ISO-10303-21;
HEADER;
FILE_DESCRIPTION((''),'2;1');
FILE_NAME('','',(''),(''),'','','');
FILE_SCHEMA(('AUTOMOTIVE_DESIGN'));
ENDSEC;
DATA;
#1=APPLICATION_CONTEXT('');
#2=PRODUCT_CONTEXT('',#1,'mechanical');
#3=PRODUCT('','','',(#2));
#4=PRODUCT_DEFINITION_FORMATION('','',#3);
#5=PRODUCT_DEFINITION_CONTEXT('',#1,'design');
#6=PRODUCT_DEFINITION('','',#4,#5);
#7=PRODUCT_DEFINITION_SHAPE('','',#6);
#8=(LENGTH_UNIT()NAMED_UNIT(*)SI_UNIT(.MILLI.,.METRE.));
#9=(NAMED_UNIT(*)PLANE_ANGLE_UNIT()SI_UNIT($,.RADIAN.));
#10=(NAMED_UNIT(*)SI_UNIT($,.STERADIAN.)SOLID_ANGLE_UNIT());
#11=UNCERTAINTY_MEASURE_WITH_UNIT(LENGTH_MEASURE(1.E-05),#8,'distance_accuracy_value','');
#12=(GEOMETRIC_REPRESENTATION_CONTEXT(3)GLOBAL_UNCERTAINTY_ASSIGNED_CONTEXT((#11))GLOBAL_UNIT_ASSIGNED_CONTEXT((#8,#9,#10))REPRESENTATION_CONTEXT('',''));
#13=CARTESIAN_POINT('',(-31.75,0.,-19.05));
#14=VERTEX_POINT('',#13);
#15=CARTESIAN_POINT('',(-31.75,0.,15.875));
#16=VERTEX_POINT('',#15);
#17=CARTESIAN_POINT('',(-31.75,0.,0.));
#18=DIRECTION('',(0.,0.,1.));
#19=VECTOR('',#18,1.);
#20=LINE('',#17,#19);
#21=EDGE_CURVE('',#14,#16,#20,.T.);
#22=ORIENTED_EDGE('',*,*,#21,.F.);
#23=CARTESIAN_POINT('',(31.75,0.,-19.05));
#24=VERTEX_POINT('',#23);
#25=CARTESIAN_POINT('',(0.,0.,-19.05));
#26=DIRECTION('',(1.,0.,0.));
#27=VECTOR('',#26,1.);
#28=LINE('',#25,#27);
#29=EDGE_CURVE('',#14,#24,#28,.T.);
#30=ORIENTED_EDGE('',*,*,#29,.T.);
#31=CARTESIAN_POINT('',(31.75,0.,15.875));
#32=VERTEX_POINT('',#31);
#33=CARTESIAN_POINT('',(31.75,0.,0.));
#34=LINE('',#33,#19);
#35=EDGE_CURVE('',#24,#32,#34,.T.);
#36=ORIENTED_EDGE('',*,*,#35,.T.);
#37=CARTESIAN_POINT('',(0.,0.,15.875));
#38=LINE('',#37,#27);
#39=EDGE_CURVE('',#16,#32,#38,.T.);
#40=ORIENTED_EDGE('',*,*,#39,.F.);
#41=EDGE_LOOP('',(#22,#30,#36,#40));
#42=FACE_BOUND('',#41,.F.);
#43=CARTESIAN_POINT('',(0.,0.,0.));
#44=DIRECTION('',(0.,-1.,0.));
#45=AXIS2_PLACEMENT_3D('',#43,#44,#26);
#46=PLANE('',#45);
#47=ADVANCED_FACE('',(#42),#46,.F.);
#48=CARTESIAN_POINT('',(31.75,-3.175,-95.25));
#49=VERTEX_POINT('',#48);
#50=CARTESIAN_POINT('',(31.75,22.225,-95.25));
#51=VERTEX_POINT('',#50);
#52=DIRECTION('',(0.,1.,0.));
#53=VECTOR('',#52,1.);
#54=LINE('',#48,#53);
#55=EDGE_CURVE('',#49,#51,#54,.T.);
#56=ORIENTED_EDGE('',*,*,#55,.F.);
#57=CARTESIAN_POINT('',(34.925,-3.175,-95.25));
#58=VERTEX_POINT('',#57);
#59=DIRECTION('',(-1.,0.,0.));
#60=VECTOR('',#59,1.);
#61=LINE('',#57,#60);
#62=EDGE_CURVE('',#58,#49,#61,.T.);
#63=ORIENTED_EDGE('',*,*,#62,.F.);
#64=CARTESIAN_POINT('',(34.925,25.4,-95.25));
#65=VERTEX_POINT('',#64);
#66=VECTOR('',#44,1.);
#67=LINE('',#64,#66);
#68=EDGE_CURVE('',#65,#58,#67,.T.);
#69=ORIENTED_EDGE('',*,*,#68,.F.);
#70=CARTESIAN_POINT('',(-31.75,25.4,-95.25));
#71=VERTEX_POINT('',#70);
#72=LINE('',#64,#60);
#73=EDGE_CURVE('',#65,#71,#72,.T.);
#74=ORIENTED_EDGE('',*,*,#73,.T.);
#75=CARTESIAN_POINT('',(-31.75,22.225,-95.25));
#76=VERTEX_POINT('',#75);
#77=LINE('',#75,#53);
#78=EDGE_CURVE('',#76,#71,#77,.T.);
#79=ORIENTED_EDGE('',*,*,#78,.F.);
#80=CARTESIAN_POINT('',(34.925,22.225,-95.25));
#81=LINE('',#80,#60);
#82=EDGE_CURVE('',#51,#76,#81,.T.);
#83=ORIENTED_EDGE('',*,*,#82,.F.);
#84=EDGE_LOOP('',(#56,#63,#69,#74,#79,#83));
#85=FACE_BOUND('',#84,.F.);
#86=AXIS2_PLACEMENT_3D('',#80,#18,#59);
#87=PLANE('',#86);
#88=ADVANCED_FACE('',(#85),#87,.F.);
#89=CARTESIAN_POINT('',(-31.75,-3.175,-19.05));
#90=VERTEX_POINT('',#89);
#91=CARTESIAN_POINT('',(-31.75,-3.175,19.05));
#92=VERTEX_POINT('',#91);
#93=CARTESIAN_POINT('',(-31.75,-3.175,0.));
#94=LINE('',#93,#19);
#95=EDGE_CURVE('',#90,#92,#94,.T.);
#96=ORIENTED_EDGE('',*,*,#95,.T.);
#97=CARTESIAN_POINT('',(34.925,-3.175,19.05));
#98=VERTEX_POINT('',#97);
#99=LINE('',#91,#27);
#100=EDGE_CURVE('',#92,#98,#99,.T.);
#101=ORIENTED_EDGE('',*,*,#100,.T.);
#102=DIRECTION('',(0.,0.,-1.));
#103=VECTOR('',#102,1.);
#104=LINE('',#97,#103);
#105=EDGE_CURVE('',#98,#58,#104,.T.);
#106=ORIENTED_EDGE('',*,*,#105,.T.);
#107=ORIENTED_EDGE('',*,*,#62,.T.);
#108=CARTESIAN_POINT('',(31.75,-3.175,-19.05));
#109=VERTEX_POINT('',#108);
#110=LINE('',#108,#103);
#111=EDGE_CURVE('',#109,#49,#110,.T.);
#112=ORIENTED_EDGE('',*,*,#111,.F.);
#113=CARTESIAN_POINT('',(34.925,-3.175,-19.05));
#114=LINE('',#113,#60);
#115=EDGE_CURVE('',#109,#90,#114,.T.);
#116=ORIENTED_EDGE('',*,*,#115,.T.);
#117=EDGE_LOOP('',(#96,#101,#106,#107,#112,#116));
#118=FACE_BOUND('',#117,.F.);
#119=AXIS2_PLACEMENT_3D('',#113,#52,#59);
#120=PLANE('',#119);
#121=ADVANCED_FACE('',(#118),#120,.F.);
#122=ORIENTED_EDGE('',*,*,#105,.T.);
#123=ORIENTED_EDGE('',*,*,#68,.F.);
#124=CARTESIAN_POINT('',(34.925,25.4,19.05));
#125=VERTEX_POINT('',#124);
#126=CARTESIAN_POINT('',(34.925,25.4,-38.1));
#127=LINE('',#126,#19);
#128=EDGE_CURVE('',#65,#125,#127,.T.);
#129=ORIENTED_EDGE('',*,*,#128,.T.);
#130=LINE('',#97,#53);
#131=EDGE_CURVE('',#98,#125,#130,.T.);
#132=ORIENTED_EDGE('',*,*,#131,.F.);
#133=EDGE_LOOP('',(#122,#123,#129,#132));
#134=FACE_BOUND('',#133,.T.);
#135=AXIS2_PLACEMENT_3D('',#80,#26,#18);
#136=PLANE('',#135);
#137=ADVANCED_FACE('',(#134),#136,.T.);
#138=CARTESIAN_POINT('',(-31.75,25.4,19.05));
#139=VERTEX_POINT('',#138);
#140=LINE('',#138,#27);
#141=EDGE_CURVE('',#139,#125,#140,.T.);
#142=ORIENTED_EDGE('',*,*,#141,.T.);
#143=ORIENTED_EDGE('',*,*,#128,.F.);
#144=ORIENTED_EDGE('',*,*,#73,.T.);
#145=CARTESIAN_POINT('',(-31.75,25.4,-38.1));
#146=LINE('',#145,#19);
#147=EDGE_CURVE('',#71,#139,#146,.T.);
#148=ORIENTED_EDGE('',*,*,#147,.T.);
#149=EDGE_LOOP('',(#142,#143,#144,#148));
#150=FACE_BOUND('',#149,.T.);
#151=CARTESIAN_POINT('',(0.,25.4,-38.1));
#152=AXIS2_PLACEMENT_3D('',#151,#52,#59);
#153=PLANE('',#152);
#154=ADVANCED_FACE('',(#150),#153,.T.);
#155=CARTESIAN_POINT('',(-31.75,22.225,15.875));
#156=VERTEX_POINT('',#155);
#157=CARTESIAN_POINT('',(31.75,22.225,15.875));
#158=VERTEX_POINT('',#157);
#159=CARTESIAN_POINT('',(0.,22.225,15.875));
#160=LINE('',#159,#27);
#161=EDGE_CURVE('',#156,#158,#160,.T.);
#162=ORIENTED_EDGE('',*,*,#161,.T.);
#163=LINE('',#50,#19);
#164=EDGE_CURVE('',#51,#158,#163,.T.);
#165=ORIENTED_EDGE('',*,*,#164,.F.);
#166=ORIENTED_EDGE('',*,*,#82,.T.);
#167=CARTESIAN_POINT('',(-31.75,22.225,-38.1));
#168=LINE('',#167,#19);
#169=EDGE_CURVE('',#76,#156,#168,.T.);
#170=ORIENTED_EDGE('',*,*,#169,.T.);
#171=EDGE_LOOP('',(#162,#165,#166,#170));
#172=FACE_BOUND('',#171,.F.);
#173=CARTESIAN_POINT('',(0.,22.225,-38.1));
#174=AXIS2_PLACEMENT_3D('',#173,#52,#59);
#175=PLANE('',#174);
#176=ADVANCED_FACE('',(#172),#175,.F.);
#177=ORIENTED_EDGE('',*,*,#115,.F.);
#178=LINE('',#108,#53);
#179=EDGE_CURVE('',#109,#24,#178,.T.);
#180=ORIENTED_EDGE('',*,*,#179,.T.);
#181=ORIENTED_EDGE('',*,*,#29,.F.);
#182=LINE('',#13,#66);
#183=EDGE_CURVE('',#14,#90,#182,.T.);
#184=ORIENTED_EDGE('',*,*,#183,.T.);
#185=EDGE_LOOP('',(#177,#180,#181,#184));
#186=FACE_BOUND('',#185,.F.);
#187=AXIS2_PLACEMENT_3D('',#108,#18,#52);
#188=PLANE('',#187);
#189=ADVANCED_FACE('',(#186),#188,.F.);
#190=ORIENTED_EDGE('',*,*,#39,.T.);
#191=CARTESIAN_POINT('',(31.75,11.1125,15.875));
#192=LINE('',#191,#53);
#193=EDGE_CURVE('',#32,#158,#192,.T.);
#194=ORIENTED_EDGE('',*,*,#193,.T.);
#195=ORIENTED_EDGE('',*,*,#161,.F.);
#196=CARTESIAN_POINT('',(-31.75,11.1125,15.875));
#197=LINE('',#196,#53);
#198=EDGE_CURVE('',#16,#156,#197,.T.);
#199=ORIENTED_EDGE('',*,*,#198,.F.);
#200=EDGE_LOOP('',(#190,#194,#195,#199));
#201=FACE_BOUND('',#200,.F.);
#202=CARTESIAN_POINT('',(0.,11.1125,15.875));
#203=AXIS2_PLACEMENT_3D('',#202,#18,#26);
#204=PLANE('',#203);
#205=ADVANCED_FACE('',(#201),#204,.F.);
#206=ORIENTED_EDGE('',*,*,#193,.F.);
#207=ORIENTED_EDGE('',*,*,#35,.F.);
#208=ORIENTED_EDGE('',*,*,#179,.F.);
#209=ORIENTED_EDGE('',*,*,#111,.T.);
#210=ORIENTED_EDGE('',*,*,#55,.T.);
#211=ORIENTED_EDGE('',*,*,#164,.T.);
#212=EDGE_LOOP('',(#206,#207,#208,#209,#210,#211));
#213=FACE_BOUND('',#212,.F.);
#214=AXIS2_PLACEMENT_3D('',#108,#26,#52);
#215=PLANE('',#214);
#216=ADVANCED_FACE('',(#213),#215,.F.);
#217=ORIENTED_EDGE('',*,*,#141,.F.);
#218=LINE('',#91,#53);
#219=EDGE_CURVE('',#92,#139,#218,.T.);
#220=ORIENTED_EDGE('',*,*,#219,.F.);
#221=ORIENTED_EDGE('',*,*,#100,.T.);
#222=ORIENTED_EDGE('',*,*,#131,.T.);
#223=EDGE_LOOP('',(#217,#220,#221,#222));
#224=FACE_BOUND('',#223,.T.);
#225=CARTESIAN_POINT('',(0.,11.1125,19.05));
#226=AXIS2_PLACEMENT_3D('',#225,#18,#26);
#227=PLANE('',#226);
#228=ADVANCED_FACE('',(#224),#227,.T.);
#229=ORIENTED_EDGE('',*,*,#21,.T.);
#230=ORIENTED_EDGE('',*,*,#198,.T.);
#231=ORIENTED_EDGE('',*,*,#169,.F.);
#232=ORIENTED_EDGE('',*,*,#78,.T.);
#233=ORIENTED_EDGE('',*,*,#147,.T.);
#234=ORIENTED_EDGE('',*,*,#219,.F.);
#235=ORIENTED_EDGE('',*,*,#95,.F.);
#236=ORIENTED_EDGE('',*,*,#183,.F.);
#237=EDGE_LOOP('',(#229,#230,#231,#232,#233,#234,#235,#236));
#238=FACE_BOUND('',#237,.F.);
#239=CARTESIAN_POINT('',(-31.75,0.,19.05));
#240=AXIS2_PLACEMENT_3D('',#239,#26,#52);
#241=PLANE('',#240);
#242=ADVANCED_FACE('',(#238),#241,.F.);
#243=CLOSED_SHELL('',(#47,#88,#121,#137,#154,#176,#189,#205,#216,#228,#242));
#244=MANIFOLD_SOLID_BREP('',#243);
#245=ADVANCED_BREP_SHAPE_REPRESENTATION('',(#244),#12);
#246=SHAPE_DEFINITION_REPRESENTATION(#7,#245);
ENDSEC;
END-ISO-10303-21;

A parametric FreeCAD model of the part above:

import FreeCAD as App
import Part
import Sketcher
from FreeCAD import Vector
Q = App.Units.Quantity

doc = App.newDocument("Part")
body = doc.addObject("PartDesign::Body", "Body")

sketch1 = body.newObject("Sketcher::SketchObject", "Sketch")
sketch1.AttachmentSupport = (doc.getObject("XZ_Plane"), [""])
sketch1.MapMode = "FlatFace"
sketch1.addGeometry(Part.LineSegment(Vector(-31.75, 19.05, 0), Vector(-31.75, -19.05, 0)), False)
sketch1.addGeometry(Part.LineSegment(Vector(-31.75, -19.05, 0), Vector(31.75, -19.05, 0)), False)
sketch1.addGeometry(Part.LineSegment(Vector(31.75, -19.05, 0), Vector(31.75, 19.05, 0)), False)
sketch1.addGeometry(Part.LineSegment(Vector(31.75, 19.05, 0), Vector(-31.75, 19.05, 0)), False)
sketch1.addConstraint(Sketcher.Constraint("Coincident", 0, 2, 1, 1))
sketch1.addConstraint(Sketcher.Constraint("Coincident", 1, 2, 2, 1))
sketch1.addConstraint(Sketcher.Constraint("Coincident", 2, 2, 3, 1))
sketch1.addConstraint(Sketcher.Constraint("Coincident", 3, 2, 0, 1))
sketch1.addConstraint(Sketcher.Constraint("Vertical", 0))
sketch1.addConstraint(Sketcher.Constraint("Horizontal", 1))
sketch1.addConstraint(Sketcher.Constraint("Vertical", 2))
sketch1.addConstraint(Sketcher.Constraint("Horizontal", 3))
sketch1.addConstraint(Sketcher.Constraint("Symmetric", 0, 2, 2, 2, -1, 1))
sketch1.addConstraint(Sketcher.Constraint("DistanceX", 1, 1, 1, 2, Q("2.5 in")))
sketch1.addConstraint(Sketcher.Constraint("DistanceY", 0, 2, 0, 1, Q("1.5 in")))
pad1 = body.newObject("PartDesign::Pad", "Pad")
pad1.Profile = sketch1
pad1.Length = Q("0.125 in")

sketch2 = body.newObject("Sketcher::SketchObject", "Sketch001")
sketch2.AttachmentSupport = (doc.getObject("YZ_Plane"), [""])
sketch2.MapMode = "FlatFace"
sketch2.AttachmentOffset = App.Placement(Vector(0, 0, 1.25 * 25.4), App.Rotation())
sketch2.addGeometry(Part.LineSegment(Vector(22.225, -19.05, 0), Vector(22.225, 19.05, 0)), False)
sketch2.addGeometry(Part.LineSegment(Vector(22.225, 19.05, 0), Vector(-3.175, 19.05, 0)), False)
sketch2.addGeometry(Part.LineSegment(Vector(-3.175, 19.05, 0), Vector(-3.175, -19.05, 0)), False)
sketch2.addGeometry(Part.LineSegment(Vector(-3.175, -19.05, 0), Vector(22.225, -19.05, 0)), False)
sketch2.addConstraint(Sketcher.Constraint("Coincident", 0, 2, 1, 1))
sketch2.addConstraint(Sketcher.Constraint("Coincident", 1, 2, 2, 1))
sketch2.addConstraint(Sketcher.Constraint("Coincident", 2, 2, 3, 1))
sketch2.addConstraint(Sketcher.Constraint("Coincident", 3, 2, 0, 1))
sketch2.addConstraint(Sketcher.Constraint("Vertical", 0))
sketch2.addConstraint(Sketcher.Constraint("Horizontal", 1))
sketch2.addConstraint(Sketcher.Constraint("Vertical", 2))
sketch2.addConstraint(Sketcher.Constraint("Horizontal", 3))
sketch2.addConstraint(Sketcher.Constraint("DistanceX", 1, 2, 1, 1, Q("1 in")))
sketch2.addConstraint(Sketcher.Constraint("DistanceY", 0, 1, 0, 2, Q("1.5 in")))
sketch2.addConstraint(Sketcher.Constraint("DistanceY", -1, 1, 0, 2, Q("0.75 in")))
sketch2.addConstraint(Sketcher.Constraint("DistanceX", -1, 1, 0, 2, Q("0.875 in")))
pad2 = body.newObject("PartDesign::Pad", "Pad001")
pad2.Profile = sketch2
pad2.Length = Q("0.125 in")

sketch3 = body.newObject("Sketcher::SketchObject", "Sketch002")
sketch3.AttachmentSupport = (doc.getObject("XY_Plane"), [""])
sketch3.MapMode = "FlatFace"
sketch3.AttachmentOffset = App.Placement(Vector(0, 0, -0.75 * 25.4), App.Rotation())
sketch3.addGeometry(Part.LineSegment(Vector(31.75, 22.225, 0), Vector(34.925, 22.225, 0)), False)
sketch3.addGeometry(Part.LineSegment(Vector(34.925, 22.225, 0), Vector(34.925, -3.175, 0)), False)
sketch3.addGeometry(Part.LineSegment(Vector(34.925, -3.175, 0), Vector(31.75, -3.175, 0)), False)
sketch3.addGeometry(Part.LineSegment(Vector(31.75, -3.175, 0), Vector(31.75, 22.225, 0)), False)
sketch3.addConstraint(Sketcher.Constraint("Coincident", 0, 2, 1, 1))
sketch3.addConstraint(Sketcher.Constraint("Coincident", 1, 2, 2, 1))
sketch3.addConstraint(Sketcher.Constraint("Coincident", 2, 2, 3, 1))
sketch3.addConstraint(Sketcher.Constraint("Coincident", 3, 2, 0, 1))
sketch3.addConstraint(Sketcher.Constraint("Horizontal", 0))
sketch3.addConstraint(Sketcher.Constraint("Vertical", 1))
sketch3.addConstraint(Sketcher.Constraint("Horizontal", 2))
sketch3.addConstraint(Sketcher.Constraint("Vertical", 3))
sketch3.addConstraint(Sketcher.Constraint("DistanceY", 1, 2, 1, 1, Q("1 in")))
sketch3.addConstraint(Sketcher.Constraint("DistanceX", 0, 1, 0, 2, Q("0.125 in")))
sketch3.addConstraint(Sketcher.Constraint("DistanceX", -1, 1, 2, 2, Q("1.25 in")))
sketch3.addConstraint(Sketcher.Constraint("DistanceY", -1, 1, 0, 2, Q("0.875 in")))
pad3 = body.newObject("PartDesign::Pad", "Pad002")
pad3.Profile = sketch3
pad3.Length = Q("3 in")
pad3.Reversed = True

sketch4 = body.newObject("Sketcher::SketchObject", "Sketch003")
sketch4.AttachmentSupport = (doc.getObject("XZ_Plane"), [""])
sketch4.MapMode = "FlatFace"
sketch4.AttachmentOffset = App.Placement(Vector(0, 0, -0.875 * 25.4), App.Rotation())
sketch4.addGeometry(Part.LineSegment(Vector(-31.75, -95.25, 0), Vector(-31.75, 19.05, 0)), False)
sketch4.addGeometry(Part.LineSegment(Vector(-31.75, 19.05, 0), Vector(34.925, 19.05, 0)), False)
sketch4.addGeometry(Part.LineSegment(Vector(34.925, 19.05, 0), Vector(34.925, -95.25, 0)), False)
sketch4.addGeometry(Part.LineSegment(Vector(34.925, -95.25, 0), Vector(-31.75, -95.25, 0)), False)
sketch4.addConstraint(Sketcher.Constraint("Coincident", 0, 2, 1, 1))
sketch4.addConstraint(Sketcher.Constraint("Coincident", 1, 2, 2, 1))
sketch4.addConstraint(Sketcher.Constraint("Coincident", 2, 2, 3, 1))
sketch4.addConstraint(Sketcher.Constraint("Coincident", 3, 2, 0, 1))
sketch4.addConstraint(Sketcher.Constraint("Vertical", 0))
sketch4.addConstraint(Sketcher.Constraint("Horizontal", 1))
sketch4.addConstraint(Sketcher.Constraint("Vertical", 2))
sketch4.addConstraint(Sketcher.Constraint("Horizontal", 3))
sketch4.addConstraint(Sketcher.Constraint("DistanceY", 0, 1, 0, 2, Q("4.5 in")))
sketch4.addConstraint(Sketcher.Constraint("DistanceX", 1, 1, 1, 2, Q("2.625 in")))
sketch4.addConstraint(Sketcher.Constraint("DistanceX", 0, 2, -1, 1, Q("1.25 in")))
sketch4.addConstraint(Sketcher.Constraint("DistanceY", -1, 1, 0, 2, Q("0.75 in")))
pad4 = body.newObject("PartDesign::Pad", "Pad003")
pad4.Profile = sketch4
pad4.Length = Q("0.125 in")
pad4.Reversed = True

sketch5 = body.newObject("Sketcher::SketchObject", "Sketch004")
sketch5.AttachmentSupport = (doc.getObject("XY_Plane"), [""])
sketch5.MapMode = "FlatFace"
sketch5.AttachmentOffset = App.Placement(Vector(0, 0, 0.75 * 25.4), App.Rotation())
sketch5.addGeometry(Part.LineSegment(Vector(-31.75, 22.225, 0), Vector(-31.75, 0, 0)), False)
sketch5.addGeometry(Part.LineSegment(Vector(-31.75, 0, 0), Vector(31.75, 0, 0)), False)
sketch5.addGeometry(Part.LineSegment(Vector(31.75, 0, 0), Vector(31.75, 22.225, 0)), False)
sketch5.addGeometry(Part.LineSegment(Vector(31.75, 22.225, 0), Vector(-31.75, 22.225, 0)), False)
sketch5.addConstraint(Sketcher.Constraint("Coincident", 0, 2, 1, 1))
sketch5.addConstraint(Sketcher.Constraint("Coincident", 1, 2, 2, 1))
sketch5.addConstraint(Sketcher.Constraint("Coincident", 2, 2, 3, 1))
sketch5.addConstraint(Sketcher.Constraint("Coincident", 3, 2, 0, 1))
sketch5.addConstraint(Sketcher.Constraint("Vertical", 0))
sketch5.addConstraint(Sketcher.Constraint("Horizontal", 1))
sketch5.addConstraint(Sketcher.Constraint("Vertical", 2))
sketch5.addConstraint(Sketcher.Constraint("Horizontal", 3))
sketch5.addConstraint(Sketcher.Constraint("Symmetric", 0, 2, 1, 2, -1, 1))
sketch5.addConstraint(Sketcher.Constraint("DistanceX", 1, 1, 1, 2, Q("2.5 in")))
sketch5.addConstraint(Sketcher.Constraint("DistanceY", 0, 2, 0, 1, Q("0.875 in")))
pad5 = body.newObject("PartDesign::Pad", "Pad004")
pad5.Profile = sketch5
pad5.Length = Q("0.125 in")
pad5.Reversed = True

doc.recompute()
